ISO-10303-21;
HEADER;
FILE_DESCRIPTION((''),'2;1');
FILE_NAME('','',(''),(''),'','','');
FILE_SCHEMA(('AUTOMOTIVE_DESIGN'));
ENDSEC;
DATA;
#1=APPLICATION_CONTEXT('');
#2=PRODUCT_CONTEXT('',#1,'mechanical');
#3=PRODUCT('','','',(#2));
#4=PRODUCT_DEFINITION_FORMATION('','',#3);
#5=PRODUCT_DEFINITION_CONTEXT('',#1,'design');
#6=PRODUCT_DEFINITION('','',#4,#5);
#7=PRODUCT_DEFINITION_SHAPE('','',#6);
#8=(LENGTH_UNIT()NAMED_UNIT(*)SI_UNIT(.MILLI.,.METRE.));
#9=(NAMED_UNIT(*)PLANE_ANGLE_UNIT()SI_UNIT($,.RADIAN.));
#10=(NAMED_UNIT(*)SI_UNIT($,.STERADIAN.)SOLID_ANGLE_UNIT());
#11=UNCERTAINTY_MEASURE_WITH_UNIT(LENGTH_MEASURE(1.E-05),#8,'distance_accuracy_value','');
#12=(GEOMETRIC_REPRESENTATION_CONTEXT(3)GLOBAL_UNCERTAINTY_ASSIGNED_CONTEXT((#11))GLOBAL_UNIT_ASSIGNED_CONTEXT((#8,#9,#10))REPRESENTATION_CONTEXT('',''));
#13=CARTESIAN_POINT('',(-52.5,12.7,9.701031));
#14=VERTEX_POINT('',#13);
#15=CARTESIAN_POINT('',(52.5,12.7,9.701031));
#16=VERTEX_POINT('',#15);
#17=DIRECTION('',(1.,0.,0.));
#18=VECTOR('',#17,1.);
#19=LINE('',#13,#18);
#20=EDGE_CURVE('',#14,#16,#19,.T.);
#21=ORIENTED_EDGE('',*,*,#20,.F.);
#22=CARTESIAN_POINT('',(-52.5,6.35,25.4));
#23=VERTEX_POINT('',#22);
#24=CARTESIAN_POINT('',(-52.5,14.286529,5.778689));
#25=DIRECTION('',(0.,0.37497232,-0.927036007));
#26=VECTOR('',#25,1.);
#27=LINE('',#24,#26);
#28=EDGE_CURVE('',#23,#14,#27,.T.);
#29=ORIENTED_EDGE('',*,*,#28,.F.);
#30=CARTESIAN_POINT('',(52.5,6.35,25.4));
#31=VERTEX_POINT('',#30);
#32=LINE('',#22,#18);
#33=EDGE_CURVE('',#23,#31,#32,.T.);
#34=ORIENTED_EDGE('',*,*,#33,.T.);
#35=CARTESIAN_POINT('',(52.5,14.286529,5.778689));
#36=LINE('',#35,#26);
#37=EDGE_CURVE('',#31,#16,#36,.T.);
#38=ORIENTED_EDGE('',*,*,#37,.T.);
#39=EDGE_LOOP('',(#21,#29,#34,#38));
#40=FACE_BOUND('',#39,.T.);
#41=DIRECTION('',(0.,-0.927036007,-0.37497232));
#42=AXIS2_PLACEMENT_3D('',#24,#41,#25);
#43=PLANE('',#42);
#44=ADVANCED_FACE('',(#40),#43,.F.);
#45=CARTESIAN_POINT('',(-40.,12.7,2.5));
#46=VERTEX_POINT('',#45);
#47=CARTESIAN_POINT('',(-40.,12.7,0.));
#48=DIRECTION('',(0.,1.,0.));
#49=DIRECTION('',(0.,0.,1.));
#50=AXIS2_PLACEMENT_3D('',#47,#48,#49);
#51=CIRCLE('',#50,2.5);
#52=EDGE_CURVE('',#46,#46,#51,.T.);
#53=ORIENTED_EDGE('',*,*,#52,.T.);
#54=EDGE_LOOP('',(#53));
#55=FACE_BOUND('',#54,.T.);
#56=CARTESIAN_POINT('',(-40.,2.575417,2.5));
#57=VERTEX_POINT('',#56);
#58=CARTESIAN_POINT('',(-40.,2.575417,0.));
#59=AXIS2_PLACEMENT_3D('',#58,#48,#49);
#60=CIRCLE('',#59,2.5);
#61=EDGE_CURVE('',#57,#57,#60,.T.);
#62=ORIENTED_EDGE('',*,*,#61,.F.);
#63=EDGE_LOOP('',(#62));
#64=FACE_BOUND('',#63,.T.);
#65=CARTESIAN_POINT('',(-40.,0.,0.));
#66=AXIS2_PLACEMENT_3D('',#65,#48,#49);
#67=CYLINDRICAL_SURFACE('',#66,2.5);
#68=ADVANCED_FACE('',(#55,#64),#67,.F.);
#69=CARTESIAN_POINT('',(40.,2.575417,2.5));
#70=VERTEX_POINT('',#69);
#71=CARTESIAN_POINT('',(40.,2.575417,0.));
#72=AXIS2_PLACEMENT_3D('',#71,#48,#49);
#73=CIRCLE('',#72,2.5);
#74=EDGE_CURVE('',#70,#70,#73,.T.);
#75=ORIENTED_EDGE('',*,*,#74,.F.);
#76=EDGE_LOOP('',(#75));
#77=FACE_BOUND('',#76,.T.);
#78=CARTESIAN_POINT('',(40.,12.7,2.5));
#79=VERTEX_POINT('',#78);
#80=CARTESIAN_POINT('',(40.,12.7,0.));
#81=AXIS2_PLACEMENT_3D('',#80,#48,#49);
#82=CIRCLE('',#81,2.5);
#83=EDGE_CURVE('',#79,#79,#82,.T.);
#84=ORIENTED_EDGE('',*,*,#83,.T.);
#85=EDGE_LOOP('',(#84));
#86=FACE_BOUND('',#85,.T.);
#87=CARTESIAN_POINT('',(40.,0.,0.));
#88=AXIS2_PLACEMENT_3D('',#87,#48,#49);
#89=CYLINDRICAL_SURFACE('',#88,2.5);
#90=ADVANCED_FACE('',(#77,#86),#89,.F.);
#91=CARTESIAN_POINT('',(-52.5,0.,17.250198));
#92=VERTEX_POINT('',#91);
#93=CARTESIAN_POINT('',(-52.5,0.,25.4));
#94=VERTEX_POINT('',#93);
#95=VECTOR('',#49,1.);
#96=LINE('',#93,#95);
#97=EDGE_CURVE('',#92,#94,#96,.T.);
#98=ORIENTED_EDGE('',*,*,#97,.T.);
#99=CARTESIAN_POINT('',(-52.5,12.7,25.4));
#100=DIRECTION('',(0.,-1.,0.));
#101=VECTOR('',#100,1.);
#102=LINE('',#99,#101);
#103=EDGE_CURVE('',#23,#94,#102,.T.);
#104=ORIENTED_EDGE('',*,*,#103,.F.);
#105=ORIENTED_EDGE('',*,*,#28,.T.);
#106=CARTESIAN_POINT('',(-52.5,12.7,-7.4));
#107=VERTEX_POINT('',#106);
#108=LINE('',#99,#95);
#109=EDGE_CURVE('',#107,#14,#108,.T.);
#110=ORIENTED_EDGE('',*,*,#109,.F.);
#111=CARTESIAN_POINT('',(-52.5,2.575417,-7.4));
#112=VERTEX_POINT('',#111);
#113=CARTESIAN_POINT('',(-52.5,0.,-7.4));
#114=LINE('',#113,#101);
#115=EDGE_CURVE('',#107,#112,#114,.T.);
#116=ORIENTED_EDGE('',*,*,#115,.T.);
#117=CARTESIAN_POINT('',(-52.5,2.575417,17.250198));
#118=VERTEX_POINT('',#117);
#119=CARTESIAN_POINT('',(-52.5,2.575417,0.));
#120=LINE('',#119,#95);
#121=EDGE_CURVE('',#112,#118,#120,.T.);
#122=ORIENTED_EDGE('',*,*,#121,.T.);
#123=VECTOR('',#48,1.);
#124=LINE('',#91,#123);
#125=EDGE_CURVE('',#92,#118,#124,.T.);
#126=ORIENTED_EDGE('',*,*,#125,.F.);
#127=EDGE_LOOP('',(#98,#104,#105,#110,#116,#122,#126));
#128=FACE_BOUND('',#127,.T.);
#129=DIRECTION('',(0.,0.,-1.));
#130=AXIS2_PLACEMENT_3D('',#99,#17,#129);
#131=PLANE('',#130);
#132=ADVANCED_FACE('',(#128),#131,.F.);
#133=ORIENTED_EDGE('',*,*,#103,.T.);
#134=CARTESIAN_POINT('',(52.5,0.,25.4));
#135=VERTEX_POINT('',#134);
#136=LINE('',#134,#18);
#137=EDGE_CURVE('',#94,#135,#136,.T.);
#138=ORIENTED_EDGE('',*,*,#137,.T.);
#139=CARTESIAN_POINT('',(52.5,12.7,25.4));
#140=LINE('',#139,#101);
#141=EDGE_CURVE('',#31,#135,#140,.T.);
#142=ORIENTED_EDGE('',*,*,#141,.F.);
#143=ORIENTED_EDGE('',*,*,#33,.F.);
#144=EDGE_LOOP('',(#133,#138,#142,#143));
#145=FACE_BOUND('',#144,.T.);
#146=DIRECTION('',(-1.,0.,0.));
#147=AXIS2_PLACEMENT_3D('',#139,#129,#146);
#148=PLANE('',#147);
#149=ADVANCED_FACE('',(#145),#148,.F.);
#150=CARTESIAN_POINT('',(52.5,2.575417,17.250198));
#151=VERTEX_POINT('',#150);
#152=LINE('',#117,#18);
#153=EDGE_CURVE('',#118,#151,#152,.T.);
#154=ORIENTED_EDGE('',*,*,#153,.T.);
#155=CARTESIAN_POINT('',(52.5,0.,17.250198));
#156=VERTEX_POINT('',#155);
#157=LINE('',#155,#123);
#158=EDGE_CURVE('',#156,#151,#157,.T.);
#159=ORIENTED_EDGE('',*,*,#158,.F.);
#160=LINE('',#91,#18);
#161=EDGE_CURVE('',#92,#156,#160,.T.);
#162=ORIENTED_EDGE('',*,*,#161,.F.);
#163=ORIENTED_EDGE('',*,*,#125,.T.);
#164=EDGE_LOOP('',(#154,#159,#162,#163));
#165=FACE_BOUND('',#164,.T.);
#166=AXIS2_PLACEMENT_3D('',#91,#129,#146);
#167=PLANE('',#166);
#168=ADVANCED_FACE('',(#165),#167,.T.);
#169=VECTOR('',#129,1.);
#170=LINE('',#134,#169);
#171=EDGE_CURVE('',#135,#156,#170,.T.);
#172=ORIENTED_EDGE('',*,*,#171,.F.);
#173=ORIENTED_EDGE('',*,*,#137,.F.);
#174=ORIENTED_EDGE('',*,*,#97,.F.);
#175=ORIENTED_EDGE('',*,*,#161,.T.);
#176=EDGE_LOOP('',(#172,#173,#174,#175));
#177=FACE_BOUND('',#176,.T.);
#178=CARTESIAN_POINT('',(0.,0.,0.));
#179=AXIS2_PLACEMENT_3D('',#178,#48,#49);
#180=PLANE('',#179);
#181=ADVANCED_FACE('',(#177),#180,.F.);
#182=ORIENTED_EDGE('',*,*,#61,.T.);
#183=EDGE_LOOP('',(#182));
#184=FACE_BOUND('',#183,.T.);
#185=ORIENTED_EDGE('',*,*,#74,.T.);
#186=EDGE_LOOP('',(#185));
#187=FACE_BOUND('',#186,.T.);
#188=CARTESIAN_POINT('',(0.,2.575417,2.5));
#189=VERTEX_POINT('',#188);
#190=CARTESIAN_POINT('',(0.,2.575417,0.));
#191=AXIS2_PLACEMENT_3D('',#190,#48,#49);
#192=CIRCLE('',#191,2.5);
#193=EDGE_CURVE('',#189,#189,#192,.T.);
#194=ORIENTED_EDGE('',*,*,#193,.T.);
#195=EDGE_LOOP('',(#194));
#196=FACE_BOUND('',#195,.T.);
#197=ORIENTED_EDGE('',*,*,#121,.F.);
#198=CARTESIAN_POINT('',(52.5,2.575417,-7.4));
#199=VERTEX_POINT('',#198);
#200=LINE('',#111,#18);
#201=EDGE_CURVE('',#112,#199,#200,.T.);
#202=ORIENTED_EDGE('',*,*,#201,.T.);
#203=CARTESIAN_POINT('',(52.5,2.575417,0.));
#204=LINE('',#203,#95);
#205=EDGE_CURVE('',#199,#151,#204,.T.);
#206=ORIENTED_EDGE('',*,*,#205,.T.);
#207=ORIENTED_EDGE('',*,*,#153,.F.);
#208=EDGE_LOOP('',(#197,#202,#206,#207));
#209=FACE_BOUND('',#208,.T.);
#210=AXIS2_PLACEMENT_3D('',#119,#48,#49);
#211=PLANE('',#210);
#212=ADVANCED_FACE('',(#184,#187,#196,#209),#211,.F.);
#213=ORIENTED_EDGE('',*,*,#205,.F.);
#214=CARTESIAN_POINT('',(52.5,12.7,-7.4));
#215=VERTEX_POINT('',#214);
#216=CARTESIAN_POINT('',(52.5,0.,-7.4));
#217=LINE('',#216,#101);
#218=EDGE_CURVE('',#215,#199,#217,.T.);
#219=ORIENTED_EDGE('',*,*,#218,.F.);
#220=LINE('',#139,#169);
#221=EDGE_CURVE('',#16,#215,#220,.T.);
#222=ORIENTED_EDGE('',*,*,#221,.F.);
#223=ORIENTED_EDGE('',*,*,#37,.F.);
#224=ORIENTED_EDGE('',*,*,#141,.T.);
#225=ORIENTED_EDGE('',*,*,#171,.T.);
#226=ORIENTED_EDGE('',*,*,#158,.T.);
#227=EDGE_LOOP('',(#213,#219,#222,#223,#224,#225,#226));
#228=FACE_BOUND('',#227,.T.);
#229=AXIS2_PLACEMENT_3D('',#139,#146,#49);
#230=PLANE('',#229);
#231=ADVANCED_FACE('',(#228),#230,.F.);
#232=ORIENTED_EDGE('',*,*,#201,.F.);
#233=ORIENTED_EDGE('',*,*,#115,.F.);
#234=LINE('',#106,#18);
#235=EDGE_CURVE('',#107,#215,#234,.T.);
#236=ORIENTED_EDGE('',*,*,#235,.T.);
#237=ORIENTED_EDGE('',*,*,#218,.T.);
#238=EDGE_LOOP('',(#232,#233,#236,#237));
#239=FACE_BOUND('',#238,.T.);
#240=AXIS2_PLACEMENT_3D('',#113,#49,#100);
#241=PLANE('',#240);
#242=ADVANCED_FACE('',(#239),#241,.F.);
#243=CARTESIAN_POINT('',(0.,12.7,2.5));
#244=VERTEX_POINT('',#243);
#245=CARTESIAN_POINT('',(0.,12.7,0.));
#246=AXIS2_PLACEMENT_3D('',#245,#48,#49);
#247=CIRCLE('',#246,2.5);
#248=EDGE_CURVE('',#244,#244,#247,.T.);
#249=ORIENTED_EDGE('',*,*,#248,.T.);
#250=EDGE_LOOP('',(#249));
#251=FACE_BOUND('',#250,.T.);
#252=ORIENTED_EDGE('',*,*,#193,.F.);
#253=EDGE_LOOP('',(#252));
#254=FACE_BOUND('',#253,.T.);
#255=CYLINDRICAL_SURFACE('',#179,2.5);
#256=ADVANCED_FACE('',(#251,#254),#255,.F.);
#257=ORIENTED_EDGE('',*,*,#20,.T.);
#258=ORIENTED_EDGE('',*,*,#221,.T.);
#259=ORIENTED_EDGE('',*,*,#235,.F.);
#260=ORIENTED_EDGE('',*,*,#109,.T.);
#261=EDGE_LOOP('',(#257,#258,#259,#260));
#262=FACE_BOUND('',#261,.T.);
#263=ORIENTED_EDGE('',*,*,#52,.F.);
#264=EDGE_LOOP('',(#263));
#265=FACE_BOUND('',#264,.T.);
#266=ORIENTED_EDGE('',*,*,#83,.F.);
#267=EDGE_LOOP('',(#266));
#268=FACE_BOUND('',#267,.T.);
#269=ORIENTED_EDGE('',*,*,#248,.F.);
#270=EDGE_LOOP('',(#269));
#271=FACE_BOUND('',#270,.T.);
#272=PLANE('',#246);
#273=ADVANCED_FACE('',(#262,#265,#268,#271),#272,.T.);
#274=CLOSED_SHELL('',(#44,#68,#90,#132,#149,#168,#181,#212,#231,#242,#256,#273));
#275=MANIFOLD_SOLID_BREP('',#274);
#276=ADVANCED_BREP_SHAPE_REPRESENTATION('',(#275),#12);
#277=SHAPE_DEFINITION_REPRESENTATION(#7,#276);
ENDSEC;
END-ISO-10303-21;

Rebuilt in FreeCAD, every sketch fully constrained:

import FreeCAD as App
import Part
import Sketcher

V = App.Vector
Q = App.Units.Quantity

doc = App.newDocument("Part")
params = doc.addObject("Spreadsheet::Sheet", "Params")
for row, (alias, value) in enumerate([
    ("sketch1_width", "105 mm"),
    ("sketch1_height", "50.8 mm"),
    ("pad1_length", "12.7 mm"),
    ("sketch2_height", "18 mm"),
    ("sketch2_width", "12.7 mm"),
    ("sketch2_width2", "6.35 mm"),
    ("sketch3_diameter", "5 mm"),
], start=1):
    params.set(f"A{row}", alias)
    params.set(f"B{row}", "=" + value)
    params.setAlias(f"B{row}", alias)

body = doc.addObject("PartDesign::Body", "Body")

sketch1 = body.newObject("Sketcher::SketchObject", "Sketch")
sketch1.AttachmentSupport = (doc.getObject("XZ_Plane"), [""])
sketch1.MapMode = "FlatFace"
sketch1.addGeometry([
    Part.LineSegment(V(-52.5, -25.4, 0), V(-52.5, 25.4, 0)),
    Part.LineSegment(V(-52.5, 25.4, 0), V(52.5, 25.4, 0)),
    Part.LineSegment(V(52.5, 25.4, 0), V(52.5, -25.4, 0)),
    Part.LineSegment(V(52.5, -25.4, 0), V(-52.5, -25.4, 0)),
], False)
sketch1.addConstraint([
    Sketcher.Constraint("Coincident", 0, 2, 1, 1),
    Sketcher.Constraint("Coincident", 1, 2, 2, 1),
    Sketcher.Constraint("Coincident", 2, 2, 3, 1),
    Sketcher.Constraint("Coincident", 3, 2, 0, 1),
    Sketcher.Constraint("Vertical", 0),
    Sketcher.Constraint("Horizontal", 1),
    Sketcher.Constraint("Vertical", 2),
    Sketcher.Constraint("Horizontal", 3),
    Sketcher.Constraint("Symmetric", 0, 2, 2, 2, -1, 1),
    Sketcher.Constraint("DistanceX", 1, 1, 1, 2, Q("105 mm")),
    Sketcher.Constraint("DistanceY", 0, 1, 0, 2, Q("50.8 mm")),
])
sketch1.setExpression("Constraints[9]", "Params.sketch1_width")
sketch1.setExpression("Constraints[10]", "Params.sketch1_height")
pad1 = body.newObject("PartDesign::Pad", "Pad")
pad1.Profile = sketch1
pad1.setExpression("Length", "Params.pad1_length")
pad1.Reversed = True

sketch2 = body.newObject("Sketcher::SketchObject", "Sketch001")
sketch2.AttachmentSupport = (doc.getObject("YZ_Plane"), [""])
sketch2.MapMode = "FlatFace"
sketch2.AttachmentOffset = App.Placement(V(0, 0, 52.5), App.Rotation())
sketch2.addGeometry([
    Part.LineSegment(V(6.35, 25.4, 0), V(12.7, 9.701031, 0)),
    Part.LineSegment(V(12.7, 9.701031, 0), V(12.7, 25.4, 0)),
    Part.LineSegment(V(12.7, 25.4, 0), V(6.35, 25.4, 0)),
    Part.LineSegment(V(2.575417, 17.250198, 0), V(0, 17.250198, 0)),
    Part.LineSegment(V(0, 17.250198, 0), V(0, -7.4, 0)),
    Part.LineSegment(V(0, -7.4, 0), V(0, -25.4, 0)),
    Part.LineSegment(V(0, -25.4, 0), V(12.7, -25.4, 0)),
    Part.LineSegment(V(12.7, -25.4, 0), V(12.7, -7.4, 0)),
    Part.LineSegment(V(12.7, -7.4, 0), V(2.575417, -7.4, 0)),
    Part.LineSegment(V(2.575417, -7.4, 0), V(2.575417, 17.250198, 0)),
], False)
sketch2.addConstraint([
    Sketcher.Constraint("Coincident", 0, 2, 1, 1),
    Sketcher.Constraint("Coincident", 1, 2, 2, 1),
    Sketcher.Constraint("Coincident", 2, 2, 0, 1),
    Sketcher.Constraint("Coincident", 3, 2, 4, 1),
    Sketcher.Constraint("Coincident", 4, 2, 5, 1),
    Sketcher.Constraint("Coincident", 5, 2, 6, 1),
    Sketcher.Constraint("Coincident", 6, 2, 7, 1),
    Sketcher.Constraint("Coincident", 7, 2, 8, 1),
    Sketcher.Constraint("Coincident", 8, 2, 9, 1),
    Sketcher.Constraint("Coincident", 9, 2, 3, 1),
    Sketcher.Constraint("Vertical", 1),
    Sketcher.Constraint("Horizontal", 2),
    Sketcher.Constraint("Horizontal", 3),
    Sketcher.Constraint("Vertical", 4),
    Sketcher.Constraint("Vertical", 5),
    Sketcher.Constraint("Horizontal", 6),
    Sketcher.Constraint("Vertical", 7),
    Sketcher.Constraint("Horizontal", 8),
    Sketcher.Constraint("Vertical", 9),
    Sketcher.Constraint("Symmetric", 1, 2, 6, 2, -1),
    Sketcher.Constraint("PointOnObject", 3, 2, -2),
    Sketcher.Constraint("Horizontal", 4, 2, 7, 2),
    Sketcher.Constraint("DistanceY", 5, 2, 5, 1, Q("18 mm")),
    Sketcher.Constraint("DistanceX", 6, 1, 6, 2, Q("12.7 mm")),
    Sketcher.Constraint("DistanceX", 2, 2, 2, 1, Q("6.35 mm")),
    Sketcher.Constraint("DistanceY", -1, 1, 1, 2, Q("25.4 mm")),
    Sketcher.Constraint("DistanceY", 1, 1, 1, 2, Q("15.698969 mm")),
    Sketcher.Constraint("DistanceX", 3, 2, 3, 1, Q("2.575417 mm")),
    Sketcher.Constraint("DistanceY", 4, 2, 4, 1, Q("24.650198 mm")),
])
sketch2.setExpression("Constraints[22]", "Params.sketch2_height")
sketch2.setExpression("Constraints[23]", "Params.sketch2_width")
sketch2.setExpression("Constraints[24]", "Params.sketch2_width2")
pocket1 = body.newObject("PartDesign::Pocket", "Pocket")
pocket1.Profile = sketch2
pocket1.Type = "ThroughAll"

sketch3 = body.newObject("Sketcher::SketchObject", "Sketch002")
sketch3.AttachmentSupport = (doc.getObject("XZ_Plane"), [""])
sketch3.MapMode = "FlatFace"
sketch3.AttachmentOffset = App.Placement(V(0, 0, -12.7), App.Rotation())
sketch3.addGeometry([
    Part.Circle(V(0, 0, 0), V(0, 0, 1), 2.5),
    Part.Circle(V(-40, 0, 0), V(0, 0, 1), 2.5),
    Part.Circle(V(40, 0, 0), V(0, 0, 1), 2.5),
], False)
sketch3.addConstraint([
    Sketcher.Constraint("Coincident", 0, 3, -1, 1),
    Sketcher.Constraint("Equal", 0, 1),
    Sketcher.Constraint("Equal", 1, 2),
    Sketcher.Constraint("Symmetric", 1, 3, 2, 3, -1, 1),
    Sketcher.Constraint("PointOnObject", 1, 3, -1),
    Sketcher.Constraint("Diameter", 0, Q("5 mm")),
    Sketcher.Constraint("DistanceX", 1, 3, -1, 1, Q("40 mm")),
])
sketch3.setExpression("Constraints[5]", "Params.sketch3_diameter")
pocket2 = body.newObject("PartDesign::Pocket", "Pocket001")
pocket2.Profile = sketch3
pocket2.Type = "ThroughAll"
pocket2.Reversed = True

doc.recompute()
